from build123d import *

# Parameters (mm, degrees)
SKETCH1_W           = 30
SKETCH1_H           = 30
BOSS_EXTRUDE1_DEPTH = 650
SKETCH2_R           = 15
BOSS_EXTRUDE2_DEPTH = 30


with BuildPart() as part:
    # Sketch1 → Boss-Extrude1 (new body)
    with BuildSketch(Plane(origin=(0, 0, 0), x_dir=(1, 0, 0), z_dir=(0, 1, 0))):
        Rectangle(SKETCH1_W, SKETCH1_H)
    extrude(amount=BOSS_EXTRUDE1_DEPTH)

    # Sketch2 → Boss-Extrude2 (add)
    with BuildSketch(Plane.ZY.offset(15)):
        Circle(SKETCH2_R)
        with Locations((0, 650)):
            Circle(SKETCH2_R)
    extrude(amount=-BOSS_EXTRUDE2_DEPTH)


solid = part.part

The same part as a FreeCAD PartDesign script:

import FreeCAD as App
import Part
import Sketcher

V = App.Vector

doc = App.newDocument("Part")
params = doc.addObject("Spreadsheet::Sheet", "Params")
for row, (alias, value) in enumerate([
    ("sketch1_width", "30 mm"),
    ("pad1_length", "650 mm"),
    ("sketch2_diameter", "30 mm"),
    ("pad2_length", "30 mm"),
], start=1):
    params.set(f"A{row}", alias)
    params.set(f"B{row}", "=" + value)
    params.setAlias(f"B{row}", alias)

body = doc.addObject("PartDesign::Body", "Body")

sketch1 = body.newObject("Sketcher::SketchObject", "Sketch")
sketch1.AttachmentSupport = (doc.getObject("XZ_Plane"), [""])
sketch1.MapMode = "FlatFace"
sketch1.addGeometry([
    Part.LineSegment(V(-15, -15, 0), V(-15, 15, 0)),
    Part.LineSegment(V(-15, 15, 0), V(15, 15, 0)),
    Part.LineSegment(V(15, 15, 0), V(15, -15, 0)),
    Part.LineSegment(V(15, -15, 0), V(-15, -15, 0)),
], False)
sketch1.addConstraint([
    Sketcher.Constraint("Coincident", 0, 2, 1, 1),
    Sketcher.Constraint("Coincident", 1, 2, 2, 1),
    Sketcher.Constraint("Coincident", 2, 2, 3, 1),
    Sketcher.Constraint("Coincident", 3, 2, 0, 1),
    Sketcher.Constraint("Vertical", 0),
    Sketcher.Constraint("Horizontal", 1),
    Sketcher.Constraint("Vertical", 2),
    Sketcher.Constraint("Horizontal", 3),
    Sketcher.Constraint("Symmetric", 0, 2, 2, 2, -1, 1),
    Sketcher.Constraint("Equal", 3, 0),
    Sketcher.Constraint("DistanceX", 1, 1, 1, 2, 30.0),
])
sketch1.setExpression("Constraints[10]", "Params.sketch1_width")
pad1 = body.newObject("PartDesign::Pad", "Pad")
pad1.Profile = sketch1
pad1.setExpression("Length", "Params.pad1_length")
pad1.Reversed = True

sketch2 = body.newObject("Sketcher::SketchObject", "Sketch001")
sketch2.AttachmentSupport = (doc.getObject("YZ_Plane"), [""])
sketch2.MapMode = "FlatFace"
sketch2.AttachmentOffset = App.Placement(V(0, 0, -15), App.Rotation())
sketch2.addGeometry([
    Part.Circle(V(0, 0, 0), V(0, 0, 1), 15),
    Part.Circle(V(650, 0, 0), V(0, 0, 1), 15),
], False)
sketch2.addConstraint([
    Sketcher.Constraint("Coincident", 0, 3, -1, 1),
    Sketcher.Constraint("Equal", 0, 1),
    Sketcher.Constraint("PointOnObject", 1, 3, -1),
    Sketcher.Constraint("Diameter", 0, 30.0),
    Sketcher.Constraint("DistanceX", -1, 1, 1, 3, 650.0),
])
sketch2.setExpression("Constraints[3]", "Params.sketch2_diameter")
pad2 = body.newObject("PartDesign::Pad", "Pad001")
pad2.Profile = sketch2
pad2.setExpression("Length", "Params.pad2_length")

doc.recompute()
